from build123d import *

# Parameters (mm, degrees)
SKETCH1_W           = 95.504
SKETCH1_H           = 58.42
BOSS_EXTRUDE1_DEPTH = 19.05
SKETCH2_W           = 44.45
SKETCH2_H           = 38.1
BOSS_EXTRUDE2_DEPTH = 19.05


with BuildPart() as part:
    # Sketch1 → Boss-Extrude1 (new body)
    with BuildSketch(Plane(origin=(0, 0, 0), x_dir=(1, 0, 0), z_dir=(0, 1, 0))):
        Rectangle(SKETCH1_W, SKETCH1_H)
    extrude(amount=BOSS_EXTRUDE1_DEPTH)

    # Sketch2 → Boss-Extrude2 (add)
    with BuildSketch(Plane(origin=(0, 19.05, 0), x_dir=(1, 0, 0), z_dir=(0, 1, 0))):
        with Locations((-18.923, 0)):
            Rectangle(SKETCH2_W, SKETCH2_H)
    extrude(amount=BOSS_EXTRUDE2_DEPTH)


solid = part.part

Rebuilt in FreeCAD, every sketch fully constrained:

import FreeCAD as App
import Part
import Sketcher

V = App.Vector
Q = App.Units.Quantity

doc = App.newDocument("Part")
body = doc.addObject("PartDesign::Body", "Body")

# Sketch on XZ plane
sketch1 = body.newObject("Sketcher::SketchObject", "Sketch")
sketch1.AttachmentSupport = (doc.getObject("XZ_Plane"), [""])
sketch1.MapMode = "FlatFace"
sketch1.addGeometry([
    Part.LineSegment(V(-48, -29, 0), V(-48, 29, 0)),
    Part.LineSegment(V(-48, 29, 0), V(48, 29, 0)),
    Part.LineSegment(V(48, 29, 0), V(48, -29, 0)),
    Part.LineSegment(V(48, -29, 0), V(-48, -29, 0)),
], False)
sketch1.addConstraint([
    Sketcher.Constraint("Coincident", 0, 2, 1, 1),
    Sketcher.Constraint("Coincident", 1, 2, 2, 1),
    Sketcher.Constraint("Coincident", 2, 2, 3, 1),
    Sketcher.Constraint("Coincident", 3, 2, 0, 1),
    Sketcher.Constraint("Vertical", 0),
    Sketcher.Constraint("Horizontal", 1),
    Sketcher.Constraint("Vertical", 2),
    Sketcher.Constraint("Horizontal", 3),
    Sketcher.Constraint("Symmetric", 0, 2, 2, 2, -1, 1),
    Sketcher.Constraint("DistanceY", 0, 1, 0, 2, Q("2.3 in")),
    Sketcher.Constraint("DistanceX", 1, 1, 1, 2, Q("3.76 in")),
])
pad1 = body.newObject("PartDesign::Pad", "Pad")
pad1.Profile = sketch1
pad1.Length = Q("0.75 in")
pad1.Reversed = True

# Sketch on XZ plane
sketch2 = body.newObject("Sketcher::SketchObject", "Sketch001")
sketch2.AttachmentSupport = (doc.getObject("XZ_Plane"), [""])
sketch2.MapMode = "FlatFace"
sketch2.AttachmentOffset = App.Placement(V(0, 0, -0.75 * 25.4), App.Rotation())
sketch2.addGeometry([
    Part.LineSegment(V(-41, -19, 0), V(-41, 19, 0)),
    Part.LineSegment(V(-41, 19, 0), V(3, 19, 0)),
    Part.LineSegment(V(3, 19, 0), V(3, -19, 0)),
    Part.LineSegment(V(3, -19, 0), V(-41, -19, 0)),
], False)
sketch2.addConstraint([
    Sketcher.Constraint("Coincident", 0, 2, 1, 1),
    Sketcher.Constraint("Coincident", 1, 2, 2, 1),
    Sketcher.Constraint("Coincident", 2, 2, 3, 1),
    Sketcher.Constraint("Coincident", 3, 2, 0, 1),
    Sketcher.Constraint("Vertical", 0),
    Sketcher.Constraint("Horizontal", 1),
    Sketcher.Constraint("Vertical", 2),
    Sketcher.Constraint("Horizontal", 3),
    Sketcher.Constraint("DistanceY", 0, 1, 0, 2, Q("1.5 in")),
    Sketcher.Constraint("DistanceX", 1, 1, 1, 2, Q("1.75 in")),
    Sketcher.Constraint("DistanceX", 0, 2, -1, 1, Q("1.62 in")),
    Sketcher.Constraint("DistanceY", -1, 1, 0, 2, Q("0.75 in")),
])
pad2 = body.newObject("PartDesign::Pad", "Pad001")
pad2.Profile = sketch2
pad2.Length = Q("0.75 in")
pad2.Reversed = True

doc.recompute()
